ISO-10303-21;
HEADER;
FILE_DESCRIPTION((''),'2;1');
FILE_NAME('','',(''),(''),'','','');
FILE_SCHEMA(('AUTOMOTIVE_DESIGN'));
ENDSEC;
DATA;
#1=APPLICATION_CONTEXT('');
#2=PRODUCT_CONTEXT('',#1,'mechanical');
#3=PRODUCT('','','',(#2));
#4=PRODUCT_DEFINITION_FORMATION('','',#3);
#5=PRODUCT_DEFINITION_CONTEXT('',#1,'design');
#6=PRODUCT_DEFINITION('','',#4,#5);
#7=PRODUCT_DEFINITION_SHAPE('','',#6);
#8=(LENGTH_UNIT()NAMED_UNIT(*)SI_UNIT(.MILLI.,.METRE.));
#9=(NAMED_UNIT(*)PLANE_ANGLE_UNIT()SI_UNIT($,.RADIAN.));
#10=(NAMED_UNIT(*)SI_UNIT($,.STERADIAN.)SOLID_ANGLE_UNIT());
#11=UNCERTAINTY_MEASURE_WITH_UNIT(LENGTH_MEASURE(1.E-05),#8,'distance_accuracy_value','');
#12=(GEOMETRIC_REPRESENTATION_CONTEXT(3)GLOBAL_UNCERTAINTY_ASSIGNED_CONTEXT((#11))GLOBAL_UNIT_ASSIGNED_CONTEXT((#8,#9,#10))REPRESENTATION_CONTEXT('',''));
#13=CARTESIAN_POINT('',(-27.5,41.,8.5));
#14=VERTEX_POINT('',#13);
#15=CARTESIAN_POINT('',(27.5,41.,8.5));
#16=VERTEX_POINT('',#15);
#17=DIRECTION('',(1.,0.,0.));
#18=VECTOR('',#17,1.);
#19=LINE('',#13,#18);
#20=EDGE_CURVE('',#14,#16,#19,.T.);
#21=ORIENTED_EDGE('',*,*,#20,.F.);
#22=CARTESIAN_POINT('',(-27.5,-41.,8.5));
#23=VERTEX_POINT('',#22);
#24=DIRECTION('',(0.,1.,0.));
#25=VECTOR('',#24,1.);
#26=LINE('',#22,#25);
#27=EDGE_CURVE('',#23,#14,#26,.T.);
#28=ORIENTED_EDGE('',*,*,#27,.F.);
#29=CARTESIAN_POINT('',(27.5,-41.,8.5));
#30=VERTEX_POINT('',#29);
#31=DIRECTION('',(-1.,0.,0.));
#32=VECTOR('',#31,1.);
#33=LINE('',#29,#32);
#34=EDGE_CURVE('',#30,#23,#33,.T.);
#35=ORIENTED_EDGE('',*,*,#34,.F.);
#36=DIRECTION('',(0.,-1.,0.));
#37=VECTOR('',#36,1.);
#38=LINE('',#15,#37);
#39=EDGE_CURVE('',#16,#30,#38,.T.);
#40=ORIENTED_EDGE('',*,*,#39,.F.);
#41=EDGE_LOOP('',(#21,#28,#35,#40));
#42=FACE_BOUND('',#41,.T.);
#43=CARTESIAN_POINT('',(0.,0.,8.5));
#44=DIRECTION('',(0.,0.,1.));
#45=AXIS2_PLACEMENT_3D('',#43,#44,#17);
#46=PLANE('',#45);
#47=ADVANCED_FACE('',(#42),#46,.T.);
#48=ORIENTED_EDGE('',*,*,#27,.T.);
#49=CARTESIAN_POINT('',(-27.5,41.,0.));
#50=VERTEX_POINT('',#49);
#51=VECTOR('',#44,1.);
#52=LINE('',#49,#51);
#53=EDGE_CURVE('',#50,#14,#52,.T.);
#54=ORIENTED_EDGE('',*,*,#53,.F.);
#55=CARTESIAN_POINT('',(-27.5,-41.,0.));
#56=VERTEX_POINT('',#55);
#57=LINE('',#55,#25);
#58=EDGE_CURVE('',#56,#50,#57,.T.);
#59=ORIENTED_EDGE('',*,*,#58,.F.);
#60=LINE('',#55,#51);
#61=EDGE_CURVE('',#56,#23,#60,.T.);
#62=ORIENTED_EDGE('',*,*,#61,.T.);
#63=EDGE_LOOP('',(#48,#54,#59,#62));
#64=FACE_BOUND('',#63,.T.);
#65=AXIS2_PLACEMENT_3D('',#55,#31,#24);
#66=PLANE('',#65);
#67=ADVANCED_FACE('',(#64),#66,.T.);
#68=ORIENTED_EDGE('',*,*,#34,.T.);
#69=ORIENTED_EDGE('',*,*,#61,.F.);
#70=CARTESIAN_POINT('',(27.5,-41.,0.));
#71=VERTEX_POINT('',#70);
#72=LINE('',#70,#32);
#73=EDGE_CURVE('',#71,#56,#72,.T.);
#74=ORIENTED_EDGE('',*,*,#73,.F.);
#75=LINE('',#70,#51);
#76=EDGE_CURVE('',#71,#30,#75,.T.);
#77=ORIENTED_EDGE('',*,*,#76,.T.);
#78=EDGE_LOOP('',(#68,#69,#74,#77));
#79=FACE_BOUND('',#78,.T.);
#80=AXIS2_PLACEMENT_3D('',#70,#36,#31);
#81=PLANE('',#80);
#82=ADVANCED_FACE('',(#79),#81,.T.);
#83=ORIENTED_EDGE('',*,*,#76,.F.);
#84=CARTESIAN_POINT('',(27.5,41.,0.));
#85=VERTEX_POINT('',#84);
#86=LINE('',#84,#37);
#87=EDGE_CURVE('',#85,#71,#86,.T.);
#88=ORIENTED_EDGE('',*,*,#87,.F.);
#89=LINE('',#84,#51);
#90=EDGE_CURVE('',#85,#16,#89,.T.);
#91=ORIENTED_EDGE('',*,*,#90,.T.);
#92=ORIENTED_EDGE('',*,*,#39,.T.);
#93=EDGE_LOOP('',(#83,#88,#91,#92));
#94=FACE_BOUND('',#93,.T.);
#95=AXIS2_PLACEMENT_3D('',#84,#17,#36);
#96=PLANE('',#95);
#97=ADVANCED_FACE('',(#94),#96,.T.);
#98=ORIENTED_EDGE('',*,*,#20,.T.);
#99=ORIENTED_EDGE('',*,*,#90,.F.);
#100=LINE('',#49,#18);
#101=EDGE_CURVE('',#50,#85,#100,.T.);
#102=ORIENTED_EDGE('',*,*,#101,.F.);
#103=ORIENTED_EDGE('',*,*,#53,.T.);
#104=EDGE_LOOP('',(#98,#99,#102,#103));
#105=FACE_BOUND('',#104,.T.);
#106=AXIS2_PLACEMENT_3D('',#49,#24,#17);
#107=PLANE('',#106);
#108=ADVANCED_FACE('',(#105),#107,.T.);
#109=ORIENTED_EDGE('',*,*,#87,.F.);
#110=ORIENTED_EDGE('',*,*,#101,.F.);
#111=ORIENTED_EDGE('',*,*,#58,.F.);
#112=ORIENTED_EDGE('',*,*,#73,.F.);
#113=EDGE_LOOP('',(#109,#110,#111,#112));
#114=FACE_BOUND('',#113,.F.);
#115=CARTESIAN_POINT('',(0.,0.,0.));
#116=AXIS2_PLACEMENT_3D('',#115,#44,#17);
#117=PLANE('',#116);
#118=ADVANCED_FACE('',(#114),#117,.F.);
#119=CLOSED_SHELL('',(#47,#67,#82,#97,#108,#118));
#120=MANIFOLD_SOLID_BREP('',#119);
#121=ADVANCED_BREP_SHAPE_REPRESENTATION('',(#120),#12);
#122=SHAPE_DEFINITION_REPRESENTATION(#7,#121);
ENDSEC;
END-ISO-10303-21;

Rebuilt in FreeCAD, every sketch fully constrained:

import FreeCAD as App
import Part
import Sketcher


def add_polygon(sketch, points):
    """Adds a closed chain of lines whose ends are joined by coincident constraints."""
    first, n = sketch.GeometryCount, len(points)
    for a, b in zip(points, points[1:] + points[:1]):
        sketch.addGeometry(Part.LineSegment(App.Vector(*a, 0), App.Vector(*b, 0)), False)
    for i in range(n):
        sketch.addConstraint(Sketcher.Constraint("Coincident", first + i, 2, first + (i + 1) % n, 1))

doc = App.newDocument("Part")
params = doc.addObject("Spreadsheet::Sheet", "Params")
for row, (alias, value) in enumerate([
    ("sketch1_width", "55 mm"),
    ("sketch1_height", "82 mm"),
    ("pad1_length", "8.5 mm"),
], start=1):
    params.set(f"A{row}", alias)
    params.set(f"B{row}", "=" + value)
    params.setAlias(f"B{row}", alias)

body = doc.addObject("PartDesign::Body", "Body")

# Sketch on XY plane
sketch1 = body.newObject("Sketcher::SketchObject", "Sketch")
sketch1.AttachmentSupport = (doc.getObject("XY_Plane"), [""])
sketch1.MapMode = "FlatFace"
add_polygon(sketch1, [(28, 41), (-28, 41), (-28, -41), (28, -41)])  # lines 0-3
sketch1.addConstraint(Sketcher.Constraint("Horizontal", 0))
sketch1.addConstraint(Sketcher.Constraint("Vertical", 1))
sketch1.addConstraint(Sketcher.Constraint("Horizontal", 2))
sketch1.addConstraint(Sketcher.Constraint("Vertical", 3))
sketch1.addConstraint(Sketcher.Constraint("Symmetric", 0, 2, 2, 2, -1, 1))
sketch1.addConstraint(Sketcher.Constraint("DistanceX", 0, 2, 0, 1, 55.0))
sketch1.addConstraint(Sketcher.Constraint("DistanceY", 1, 2, 1, 1, 82.0))
sketch1.setExpression("Constraints[9]", "Params.sketch1_width")
sketch1.setExpression("Constraints[10]", "Params.sketch1_height")
pad1 = body.newObject("PartDesign::Pad", "Pad")
pad1.Profile = sketch1
pad1.setExpression("Length", "Params.pad1_length")

doc.recompute()
